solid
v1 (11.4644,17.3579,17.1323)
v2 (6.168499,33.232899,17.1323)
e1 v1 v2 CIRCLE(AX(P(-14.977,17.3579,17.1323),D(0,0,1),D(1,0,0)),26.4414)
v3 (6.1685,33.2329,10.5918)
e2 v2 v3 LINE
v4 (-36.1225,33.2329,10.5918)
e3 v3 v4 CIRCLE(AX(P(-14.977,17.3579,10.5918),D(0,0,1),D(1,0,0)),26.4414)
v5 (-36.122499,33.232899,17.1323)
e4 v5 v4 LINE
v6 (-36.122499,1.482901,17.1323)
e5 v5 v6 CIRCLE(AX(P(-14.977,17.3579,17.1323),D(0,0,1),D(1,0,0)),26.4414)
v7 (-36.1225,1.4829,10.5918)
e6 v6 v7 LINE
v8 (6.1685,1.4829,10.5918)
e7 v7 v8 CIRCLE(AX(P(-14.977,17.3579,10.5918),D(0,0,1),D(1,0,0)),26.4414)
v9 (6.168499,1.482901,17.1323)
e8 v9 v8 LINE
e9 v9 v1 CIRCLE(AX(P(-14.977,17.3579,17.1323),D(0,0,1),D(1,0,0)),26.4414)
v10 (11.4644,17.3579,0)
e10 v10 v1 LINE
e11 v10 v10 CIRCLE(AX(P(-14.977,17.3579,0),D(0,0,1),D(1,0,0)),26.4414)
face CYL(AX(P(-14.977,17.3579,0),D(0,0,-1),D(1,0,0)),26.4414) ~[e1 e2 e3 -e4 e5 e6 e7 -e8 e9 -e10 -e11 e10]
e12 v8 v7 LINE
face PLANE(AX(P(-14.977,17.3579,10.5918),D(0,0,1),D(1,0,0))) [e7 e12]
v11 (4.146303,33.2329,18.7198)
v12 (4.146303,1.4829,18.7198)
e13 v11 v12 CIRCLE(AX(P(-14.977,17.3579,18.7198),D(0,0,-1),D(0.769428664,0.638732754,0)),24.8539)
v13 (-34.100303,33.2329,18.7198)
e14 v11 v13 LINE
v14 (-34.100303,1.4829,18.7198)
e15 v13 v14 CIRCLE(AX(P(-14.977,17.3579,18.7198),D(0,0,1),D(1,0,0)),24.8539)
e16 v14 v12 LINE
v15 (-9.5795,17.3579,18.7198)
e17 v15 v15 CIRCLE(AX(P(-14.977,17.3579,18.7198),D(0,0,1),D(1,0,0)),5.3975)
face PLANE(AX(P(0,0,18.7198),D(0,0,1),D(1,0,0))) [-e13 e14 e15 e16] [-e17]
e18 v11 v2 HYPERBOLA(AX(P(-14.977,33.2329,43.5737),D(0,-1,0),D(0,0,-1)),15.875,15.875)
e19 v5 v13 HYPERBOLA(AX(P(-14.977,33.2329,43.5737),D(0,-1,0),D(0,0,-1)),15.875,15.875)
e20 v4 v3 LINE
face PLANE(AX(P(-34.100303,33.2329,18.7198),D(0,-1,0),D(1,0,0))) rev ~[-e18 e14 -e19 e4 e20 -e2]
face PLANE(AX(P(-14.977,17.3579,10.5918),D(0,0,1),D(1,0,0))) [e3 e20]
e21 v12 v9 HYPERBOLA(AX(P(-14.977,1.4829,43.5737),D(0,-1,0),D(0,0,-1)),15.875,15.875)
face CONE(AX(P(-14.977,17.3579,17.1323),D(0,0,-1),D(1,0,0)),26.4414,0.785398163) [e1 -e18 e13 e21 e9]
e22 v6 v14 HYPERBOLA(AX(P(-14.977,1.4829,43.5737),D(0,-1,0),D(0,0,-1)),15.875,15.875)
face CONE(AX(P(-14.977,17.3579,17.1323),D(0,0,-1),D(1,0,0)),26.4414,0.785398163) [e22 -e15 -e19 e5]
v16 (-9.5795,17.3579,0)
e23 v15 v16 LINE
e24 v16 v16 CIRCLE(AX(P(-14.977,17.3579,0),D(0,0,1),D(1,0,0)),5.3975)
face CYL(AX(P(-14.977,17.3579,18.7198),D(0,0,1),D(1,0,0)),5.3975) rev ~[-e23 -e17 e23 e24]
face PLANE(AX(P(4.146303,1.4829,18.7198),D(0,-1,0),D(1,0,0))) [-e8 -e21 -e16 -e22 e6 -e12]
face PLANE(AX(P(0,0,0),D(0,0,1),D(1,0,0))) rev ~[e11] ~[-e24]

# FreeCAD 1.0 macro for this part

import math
import FreeCAD as App
import Part
import Sketcher

V = App.Vector
Q = App.Units.Quantity


def edges_at(feature, points):
    """Names of the edges that pass closest to the given points."""
    edges = feature.Shape.Edges
    near = lambda p: min(range(len(edges)), key=lambda i: edges[i].distToShape(Part.Vertex(*p))[0])
    return sorted({f"Edge{near(p) + 1}" for p in points})

doc = App.newDocument("Part")
params = doc.addObject("Spreadsheet::Sheet", "Params")
for row, (alias, value) in enumerate([
    ("sketch1_diameter", "2.082 in"),
    ("pad1_length", "0.737 in"),
    ("chamfer_size", "0.0625 in"),
    ("sketch2_radius", "1.041 in"),
    ("pocket1_length", "0.32 in"),
    ("sketch3_diameter", "0.425 in"),
], start=1):
    params.set(f"A{row}", alias)
    params.set(f"B{row}", "=" + value)
    params.setAlias(f"B{row}", alias)

body = doc.addObject("PartDesign::Body", "Body")

# Sketch on XY plane
sketch1 = body.newObject("Sketcher::SketchObject", "Sketch")
sketch1.AttachmentSupport = (doc.getObject("XY_Plane"), [""])
sketch1.MapMode = "FlatFace"
sketch1.addGeometry(Part.Circle(V(-15, 17, 0), V(0, 0, 1), 26), False)
sketch1.addConstraint([
    Sketcher.Constraint("Diameter", 0, Q("2.082 in")),
    Sketcher.Constraint("DistanceX", 0, 3, -1, 1, 14.977),
    Sketcher.Constraint("DistanceY", -1, 1, 0, 3, 17.358),
])
sketch1.setExpression("Constraints[0]", "Params.sketch1_diameter")
pad1 = body.newObject("PartDesign::Pad", "Pad")
pad1.Profile = sketch1
pad1.setExpression("Length", "Params.pad1_length")
doc.recompute()

chamfer = body.newObject("PartDesign::Chamfer", "Chamfer")
chamfer.Base = (pad1, edges_at(pad1, [(-41.418, 17.358, 18.72)]))
chamfer.setExpression("Size", "Params.chamfer_size")

# Sketch on XY plane
sketch2 = body.newObject("Sketcher::SketchObject", "Sketch001")
sketch2.AttachmentSupport = (doc.getObject("XY_Plane"), [""])
sketch2.MapMode = "FlatFace"
sketch2.AttachmentOffset = App.Placement(V(0, 0, 0.737 * 25.4), App.Rotation())
sketch2.addGeometry([
    Part.ArcOfCircle(Part.Circle(V(-15, 17, 0), V(0, 0, 1), 26), math.radians(37), math.radians(143)),
    Part.LineSegment(V(6, 33, 0), V(-36, 33, 0)),
    Part.LineSegment(V(6, 1, 0), V(-36, 1, 0)),
    Part.ArcOfCircle(Part.Circle(V(-15, 17, 0), V(0, 0, 1), 26), math.radians(-143), math.radians(-37)),
], False)
sketch2.addConstraint([
    Sketcher.Constraint("Coincident", 0, 1, 1, 1),
    Sketcher.Constraint("Coincident", 1, 2, 0, 2),
    Sketcher.Constraint("Coincident", 2, 1, 3, 2),
    Sketcher.Constraint("Coincident", 3, 1, 2, 2),
    Sketcher.Constraint("Horizontal", 1),
    Sketcher.Constraint("Horizontal", 2),
    Sketcher.Constraint("Coincident", 3, 3, 0, 3),
    Sketcher.Constraint("Equal", 0, 3),
    Sketcher.Constraint("Vertical", 0, 1, 2, 1),
    Sketcher.Constraint("DistanceY", 2, 1, 0, 1, Q("1.25 in")),
    Sketcher.Constraint("Radius", 0, Q("1.041 in")),
    Sketcher.Constraint("DistanceX", 0, 3, -1, 1, 14.977),
    Sketcher.Constraint("DistanceY", -1, 1, 0, 3, 17.358),
])
sketch2.setExpression("Constraints[10]", "Params.sketch2_radius")
pocket1 = body.newObject("PartDesign::Pocket", "Pocket")
pocket1.Profile = sketch2
pocket1.setExpression("Length", "Params.pocket1_length")

# Sketch on XY plane
sketch3 = body.newObject("Sketcher::SketchObject", "Sketch002")
sketch3.AttachmentSupport = (doc.getObject("XY_Plane"), [""])
sketch3.MapMode = "FlatFace"
sketch3.AttachmentOffset = App.Placement(V(0, 0, 0.737 * 25.4), App.Rotation())
sketch3.addGeometry(Part.Circle(V(-15, 17, 0), V(0, 0, 1), 5), False)
sketch3.addConstraint([
    Sketcher.Constraint("Diameter", 0, Q("0.425 in")),
    Sketcher.Constraint("DistanceX", 0, 3, -1, 1, 14.977),
    Sketcher.Constraint("DistanceY", -1, 1, 0, 3, 17.358),
])
sketch3.setExpression("Constraints[0]", "Params.sketch3_diameter")
pocket2 = body.newObject("PartDesign::Pocket", "Pocket001")
pocket2.Profile = sketch3
pocket2.Type = "ThroughAll"

doc.recompute()
